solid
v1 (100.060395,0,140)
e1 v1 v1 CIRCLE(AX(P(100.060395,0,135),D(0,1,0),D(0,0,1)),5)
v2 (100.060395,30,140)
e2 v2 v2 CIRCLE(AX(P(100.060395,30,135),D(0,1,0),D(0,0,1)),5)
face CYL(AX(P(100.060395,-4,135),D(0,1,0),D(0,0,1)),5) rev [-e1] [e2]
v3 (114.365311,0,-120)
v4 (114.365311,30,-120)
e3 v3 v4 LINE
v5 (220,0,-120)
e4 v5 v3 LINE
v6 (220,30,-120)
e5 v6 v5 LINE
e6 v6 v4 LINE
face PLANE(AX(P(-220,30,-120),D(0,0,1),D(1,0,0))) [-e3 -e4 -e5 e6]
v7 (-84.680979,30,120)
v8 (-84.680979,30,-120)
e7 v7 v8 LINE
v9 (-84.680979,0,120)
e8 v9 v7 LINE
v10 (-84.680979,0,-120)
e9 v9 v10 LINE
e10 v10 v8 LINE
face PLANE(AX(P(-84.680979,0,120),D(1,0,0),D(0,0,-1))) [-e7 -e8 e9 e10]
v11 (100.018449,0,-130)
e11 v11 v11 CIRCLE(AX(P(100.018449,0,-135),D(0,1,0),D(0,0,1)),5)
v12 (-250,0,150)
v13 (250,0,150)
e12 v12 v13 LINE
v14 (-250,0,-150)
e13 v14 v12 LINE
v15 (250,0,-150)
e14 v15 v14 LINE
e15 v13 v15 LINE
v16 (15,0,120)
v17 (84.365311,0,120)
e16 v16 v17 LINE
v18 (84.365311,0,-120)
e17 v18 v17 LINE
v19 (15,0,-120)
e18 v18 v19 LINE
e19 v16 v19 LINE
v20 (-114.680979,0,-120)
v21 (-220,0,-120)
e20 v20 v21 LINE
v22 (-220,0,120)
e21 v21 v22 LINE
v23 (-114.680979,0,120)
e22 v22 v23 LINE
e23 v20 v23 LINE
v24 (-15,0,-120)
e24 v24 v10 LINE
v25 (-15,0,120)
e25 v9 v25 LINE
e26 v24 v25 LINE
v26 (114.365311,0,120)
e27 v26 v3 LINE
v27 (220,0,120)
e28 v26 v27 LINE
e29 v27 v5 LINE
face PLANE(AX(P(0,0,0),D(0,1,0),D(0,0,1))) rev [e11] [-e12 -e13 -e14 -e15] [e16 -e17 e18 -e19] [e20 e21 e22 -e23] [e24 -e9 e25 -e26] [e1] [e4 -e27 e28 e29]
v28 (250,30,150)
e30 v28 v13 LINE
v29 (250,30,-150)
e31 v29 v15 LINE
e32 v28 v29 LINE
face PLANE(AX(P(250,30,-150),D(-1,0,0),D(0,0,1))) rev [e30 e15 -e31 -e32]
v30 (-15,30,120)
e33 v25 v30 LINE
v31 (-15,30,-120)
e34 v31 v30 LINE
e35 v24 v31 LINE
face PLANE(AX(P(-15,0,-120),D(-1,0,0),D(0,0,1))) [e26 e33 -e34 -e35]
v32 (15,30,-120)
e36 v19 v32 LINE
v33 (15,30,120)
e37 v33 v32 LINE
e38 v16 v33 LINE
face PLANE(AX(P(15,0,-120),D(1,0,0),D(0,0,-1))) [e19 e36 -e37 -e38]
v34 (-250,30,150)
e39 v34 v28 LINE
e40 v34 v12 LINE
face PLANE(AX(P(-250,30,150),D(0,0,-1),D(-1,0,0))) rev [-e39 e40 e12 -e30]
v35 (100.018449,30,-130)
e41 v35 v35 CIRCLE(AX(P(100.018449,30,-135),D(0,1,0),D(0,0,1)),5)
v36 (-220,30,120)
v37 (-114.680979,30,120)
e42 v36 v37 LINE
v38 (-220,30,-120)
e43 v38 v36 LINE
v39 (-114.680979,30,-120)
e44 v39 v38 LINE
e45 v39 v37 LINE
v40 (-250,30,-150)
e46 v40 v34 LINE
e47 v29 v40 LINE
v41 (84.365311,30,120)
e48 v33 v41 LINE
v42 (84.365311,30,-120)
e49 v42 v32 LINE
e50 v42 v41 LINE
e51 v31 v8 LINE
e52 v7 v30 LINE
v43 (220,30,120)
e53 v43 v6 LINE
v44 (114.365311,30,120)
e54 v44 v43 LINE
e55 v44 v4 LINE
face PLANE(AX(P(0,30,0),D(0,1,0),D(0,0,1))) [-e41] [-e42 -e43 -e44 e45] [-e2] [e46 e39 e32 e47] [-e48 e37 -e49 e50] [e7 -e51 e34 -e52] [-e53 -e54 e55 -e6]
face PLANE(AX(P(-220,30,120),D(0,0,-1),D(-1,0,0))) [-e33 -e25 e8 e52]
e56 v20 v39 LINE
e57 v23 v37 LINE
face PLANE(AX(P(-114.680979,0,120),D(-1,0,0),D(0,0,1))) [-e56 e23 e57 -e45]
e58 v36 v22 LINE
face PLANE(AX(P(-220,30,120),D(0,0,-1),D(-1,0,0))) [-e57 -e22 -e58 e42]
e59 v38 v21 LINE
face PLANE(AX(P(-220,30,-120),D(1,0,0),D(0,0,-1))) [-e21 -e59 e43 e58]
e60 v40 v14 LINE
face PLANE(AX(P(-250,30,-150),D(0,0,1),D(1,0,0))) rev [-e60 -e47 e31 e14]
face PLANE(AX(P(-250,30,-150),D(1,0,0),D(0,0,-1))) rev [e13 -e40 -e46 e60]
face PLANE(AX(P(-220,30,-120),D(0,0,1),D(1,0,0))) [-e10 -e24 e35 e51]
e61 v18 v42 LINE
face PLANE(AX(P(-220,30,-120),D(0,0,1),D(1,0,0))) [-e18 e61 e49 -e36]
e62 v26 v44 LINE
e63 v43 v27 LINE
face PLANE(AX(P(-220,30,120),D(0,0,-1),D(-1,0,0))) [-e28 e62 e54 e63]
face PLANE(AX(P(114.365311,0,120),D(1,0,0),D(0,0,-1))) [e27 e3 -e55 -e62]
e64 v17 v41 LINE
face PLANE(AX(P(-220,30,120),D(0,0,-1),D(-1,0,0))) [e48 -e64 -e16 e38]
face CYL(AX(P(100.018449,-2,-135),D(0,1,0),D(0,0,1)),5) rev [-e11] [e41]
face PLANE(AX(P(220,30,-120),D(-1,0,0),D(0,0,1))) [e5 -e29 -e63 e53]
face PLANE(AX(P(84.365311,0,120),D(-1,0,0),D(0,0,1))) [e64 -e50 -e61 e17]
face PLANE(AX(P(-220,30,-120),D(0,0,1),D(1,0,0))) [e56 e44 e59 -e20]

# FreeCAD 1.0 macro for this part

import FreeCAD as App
import Part
import Sketcher
Q = App.Units.Quantity


def add_polygon(sketch, points):
    """Adds a closed chain of lines whose ends are joined by coincident constraints."""
    first, n = sketch.GeometryCount, len(points)
    for a, b in zip(points, points[1:] + points[:1]):
        sketch.addGeometry(Part.LineSegment(App.Vector(*a, 0), App.Vector(*b, 0)), False)
    for i in range(n):
        sketch.addConstraint(Sketcher.Constraint("Coincident", first + i, 2, first + (i + 1) % n, 1))

doc = App.newDocument("Part")
params = doc.addObject("Spreadsheet::Sheet", "Params")
for row, (alias, value) in enumerate([
    ("sketch1_width", "500 mm"),
    ("sketch1_width2", "440 mm"),
    ("sketch1_height", "300 mm"),
    ("sketch1_height2", "240 mm"),
    ("pad1_length", "30 mm"),
    ("sketch2_width", "30 mm"),
    ("sketch2_height", "240 mm"),
    ("pad2_length", "30 mm"),
    ("sketch3_width", "30 mm"),
    ("sketch3_height", "240 mm"),
    ("pad3_length", "30 mm"),
    ("sketch4_diameter", "10 mm"),
    ("pocket1_length", "32 mm"),
    ("sketch5_diameter", "10 mm"),
    ("pocket2_length", "34 mm"),
], start=1):
    params.set(f"A{row}", alias)
    params.set(f"B{row}", "=" + value)
    params.setAlias(f"B{row}", alias)

body = doc.addObject("PartDesign::Body", "Body")

# Sketch on XZ plane
sketch1 = body.newObject("Sketcher::SketchObject", "Sketch")
sketch1.AttachmentSupport = (doc.getObject("XZ_Plane"), [""])
sketch1.MapMode = "FlatFace"
add_polygon(sketch1, [(-250, -150), (-250, 150), (250, 150), (250, -150)])  # lines 0-3
add_polygon(sketch1, [(220, 120), (-220, 120), (-220, -120), (220, -120)])  # lines 4-7
sketch1.addConstraint([
    Sketcher.Constraint("Vertical", 0),
    Sketcher.Constraint("Horizontal", 1),
    Sketcher.Constraint("Vertical", 2),
    Sketcher.Constraint("Horizontal", 3),
    Sketcher.Constraint("Horizontal", 4),
    Sketcher.Constraint("Vertical", 5),
    Sketcher.Constraint("Horizontal", 6),
    Sketcher.Constraint("Vertical", 7),
    Sketcher.Constraint("Symmetric", 0, 2, 2, 2, -1, 1),
    Sketcher.Constraint("Symmetric", 4, 2, 6, 2, -1, 1),
    Sketcher.Constraint("DistanceX", 1, 1, 1, 2, Q("500 mm")),
    Sketcher.Constraint("DistanceX", 4, 2, 4, 1, Q("440 mm")),
    Sketcher.Constraint("DistanceY", 0, 1, 0, 2, Q("300 mm")),
    Sketcher.Constraint("DistanceY", 5, 2, 5, 1, Q("240 mm")),
])
sketch1.setExpression("Constraints[18]", "Params.sketch1_width")
sketch1.setExpression("Constraints[19]", "Params.sketch1_width2")
sketch1.setExpression("Constraints[20]", "Params.sketch1_height")
sketch1.setExpression("Constraints[21]", "Params.sketch1_height2")
pad1 = body.newObject("PartDesign::Pad", "Pad")
pad1.Profile = sketch1
pad1.setExpression("Length", "Params.pad1_length")
pad1.Reversed = True

# Sketch on XZ plane
sketch2 = body.newObject("Sketcher::SketchObject", "Sketch001")
sketch2.AttachmentSupport = (doc.getObject("XZ_Plane"), [""])
sketch2.MapMode = "FlatFace"
sketch2.AttachmentOffset = App.Placement(App.Vector(0, 0, -30), App.Rotation())
add_polygon(sketch2, [(-15, -120), (-15, 120), (15, 120), (15, -120)])  # lines 0-3
sketch2.addConstraint([
    Sketcher.Constraint("Vertical", 0),
    Sketcher.Constraint("Horizontal", 1),
    Sketcher.Constraint("Vertical", 2),
    Sketcher.Constraint("Horizontal", 3),
    Sketcher.Constraint("Symmetric", 0, 2, 2, 2, -1, 1),
    Sketcher.Constraint("DistanceX", 1, 1, 1, 2, Q("30 mm")),
    Sketcher.Constraint("DistanceY", 0, 1, 0, 2, Q("240 mm")),
])
sketch2.setExpression("Constraints[9]", "Params.sketch2_width")
sketch2.setExpression("Constraints[10]", "Params.sketch2_height")
pad2 = body.newObject("PartDesign::Pad", "Pad001")
pad2.Profile = sketch2
pad2.setExpression("Length", "Params.pad2_length")

# Sketch on XZ plane
sketch3 = body.newObject("Sketcher::SketchObject", "Sketch002")
sketch3.AttachmentSupport = (doc.getObject("XZ_Plane"), [""])
sketch3.MapMode = "FlatFace"
sketch3.AttachmentOffset = App.Placement(App.Vector(0, 0, -30), App.Rotation())
add_polygon(sketch3, [(-115, -120), (-115, 120), (-85, 120), (-85, -120)])  # lines 0-3
add_polygon(sketch3, [(84, -120), (84, 120), (114, 120), (114, -120)])  # lines 4-7
sketch3.addConstraint([
    Sketcher.Constraint("Vertical", 0),
    Sketcher.Constraint("Horizontal", 1),
    Sketcher.Constraint("Vertical", 2),
    Sketcher.Constraint("Horizontal", 3),
    Sketcher.Constraint("Vertical", 4),
    Sketcher.Constraint("Horizontal", 5),
    Sketcher.Constraint("Vertical", 6),
    Sketcher.Constraint("Horizontal", 7),
    Sketcher.Constraint("Horizontal", 1, 2, 4, 2),
    Sketcher.Constraint("Horizontal", 3, 2, 6, 2),
    Sketcher.Constraint("Equal", 3, 5),
    Sketcher.Constraint("DistanceX", 1, 1, 1, 2, Q("30 mm")),
    Sketcher.Constraint("DistanceY", 0, 1, 0, 2, Q("240 mm")),
    Sketcher.Constraint("DistanceY", -1, 1, 0, 2, Q("120 mm")),
    Sketcher.Constraint("DistanceX", 0, 2, -1, 1, Q("114.680979 mm")),
    Sketcher.Constraint("DistanceX", -1, 1, 4, 2, Q("84.365311 mm")),
])
sketch3.setExpression("Constraints[19]", "Params.sketch3_width")
sketch3.setExpression("Constraints[20]", "Params.sketch3_height")
pad3 = body.newObject("PartDesign::Pad", "Pad002")
pad3.Profile = sketch3
pad3.setExpression("Length", "Params.pad3_length")

# Sketch on XZ plane
sketch4 = body.newObject("Sketcher::SketchObject", "Sketch003")
sketch4.AttachmentSupport = (doc.getObject("XZ_Plane"), [""])
sketch4.MapMode = "FlatFace"
sketch4.AttachmentOffset = App.Placement(App.Vector(0, 0, -30), App.Rotation())
sketch4.addGeometry(Part.Circle(App.Vector(100, -135, 0), App.Vector(0, 0, 1), 5), False)
sketch4.addConstraint([
    Sketcher.Constraint("Diameter", 0, Q("10 mm")),
    Sketcher.Constraint("DistanceY", 0, 3, -1, 1, Q("135 mm")),
    Sketcher.Constraint("DistanceX", -1, 1, 0, 3, Q("100.018449 mm")),
])
sketch4.setExpression("Constraints[0]", "Params.sketch4_diameter")
pocket1 = body.newObject("PartDesign::Pocket", "Pocket")
pocket1.Profile = sketch4
pocket1.setExpression("Length", "Params.pocket1_length")
pocket1.Reversed = True

# Sketch on XZ plane
sketch5 = body.newObject("Sketcher::SketchObject", "Sketch004")
sketch5.AttachmentSupport = (doc.getObject("XZ_Plane"), [""])
sketch5.MapMode = "FlatFace"
sketch5.AttachmentOffset = App.Placement(App.Vector(0, 0, -30), App.Rotation())
sketch5.addGeometry(Part.Circle(App.Vector(100, 135, 0), App.Vector(0, 0, 1), 5), False)
sketch5.addConstraint([
    Sketcher.Constraint("Diameter", 0, Q("10 mm")),
    Sketcher.Constraint("DistanceY", -1, 1, 0, 3, Q("135 mm")),
    Sketcher.Constraint("DistanceX", -1, 1, 0, 3, Q("100.060395 mm")),
])
sketch5.setExpression("Constraints[0]", "Params.sketch5_diameter")
pocket2 = body.newObject("PartDesign::Pocket", "Pocket001")
pocket2.Profile = sketch5
pocket2.setExpression("Length", "Params.pocket2_length")
pocket2.Reversed = True

doc.recompute()
